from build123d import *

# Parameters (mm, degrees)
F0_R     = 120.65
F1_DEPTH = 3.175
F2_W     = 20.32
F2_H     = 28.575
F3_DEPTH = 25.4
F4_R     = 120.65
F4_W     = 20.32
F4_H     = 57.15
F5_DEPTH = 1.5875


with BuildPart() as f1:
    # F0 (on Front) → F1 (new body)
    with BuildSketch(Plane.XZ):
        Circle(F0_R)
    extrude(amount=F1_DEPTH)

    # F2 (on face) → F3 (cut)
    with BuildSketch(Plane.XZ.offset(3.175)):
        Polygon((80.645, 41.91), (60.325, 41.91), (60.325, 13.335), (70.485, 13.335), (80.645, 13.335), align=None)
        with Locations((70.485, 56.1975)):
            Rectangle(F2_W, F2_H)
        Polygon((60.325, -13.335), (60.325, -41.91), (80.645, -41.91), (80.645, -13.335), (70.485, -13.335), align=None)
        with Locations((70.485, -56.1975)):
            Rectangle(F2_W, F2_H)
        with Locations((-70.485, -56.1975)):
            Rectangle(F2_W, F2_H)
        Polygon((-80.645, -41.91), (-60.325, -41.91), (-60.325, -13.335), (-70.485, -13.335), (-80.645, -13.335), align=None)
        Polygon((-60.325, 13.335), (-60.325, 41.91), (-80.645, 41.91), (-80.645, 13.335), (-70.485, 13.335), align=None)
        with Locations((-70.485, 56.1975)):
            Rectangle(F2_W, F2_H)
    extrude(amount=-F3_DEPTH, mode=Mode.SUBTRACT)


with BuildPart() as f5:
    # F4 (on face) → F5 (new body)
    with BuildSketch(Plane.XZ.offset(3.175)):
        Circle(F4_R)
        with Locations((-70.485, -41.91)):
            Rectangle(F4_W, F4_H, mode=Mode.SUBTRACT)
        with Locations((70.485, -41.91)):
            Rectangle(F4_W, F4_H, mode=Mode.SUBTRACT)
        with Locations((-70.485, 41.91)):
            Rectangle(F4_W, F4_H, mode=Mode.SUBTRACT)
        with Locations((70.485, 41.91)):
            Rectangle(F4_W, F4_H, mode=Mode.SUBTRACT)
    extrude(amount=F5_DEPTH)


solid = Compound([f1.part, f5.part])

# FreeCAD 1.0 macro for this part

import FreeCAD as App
import Part
import Sketcher
Q = App.Units.Quantity


def add_polygon(sketch, points):
    """Adds a closed chain of lines whose ends are joined by coincident constraints."""
    first, n = sketch.GeometryCount, len(points)
    for a, b in zip(points, points[1:] + points[:1]):
        sketch.addGeometry(Part.LineSegment(App.Vector(*a, 0), App.Vector(*b, 0)), False)
    for i in range(n):
        sketch.addConstraint(Sketcher.Constraint("Coincident", first + i, 2, first + (i + 1) % n, 1))

doc = App.newDocument("Part")
body = doc.addObject("PartDesign::Body", "Body")

# Sketch on XZ plane
sketch1 = body.newObject("Sketcher::SketchObject", "Sketch")
sketch1.AttachmentSupport = (doc.getObject("XZ_Plane"), [""])
sketch1.MapMode = "FlatFace"
sketch1.addGeometry(Part.Circle(App.Vector(0, 0, 0), App.Vector(0, 0, 1), 120.65), False)
sketch1.addConstraint(Sketcher.Constraint("Coincident", 0, 3, -1, 1))
sketch1.addConstraint(Sketcher.Constraint("Diameter", 0, Q("9.5 in")))
pad1 = body.newObject("PartDesign::Pad", "Pad")
pad1.Profile = sketch1
pad1.Length = Q("0.125 in")

# Sketch on XZ plane
sketch2 = body.newObject("Sketcher::SketchObject", "Sketch001")
sketch2.AttachmentSupport = (doc.getObject("XZ_Plane"), [""])
sketch2.MapMode = "FlatFace"
sketch2.AttachmentOffset = App.Placement(App.Vector(0, 0, 0.125 * 25.4), App.Rotation())
add_polygon(sketch2, [(60.325, 13.335), (80.645, 13.335), (80.645, 70.485), (60.325, 70.485)])  # lines 0-3
add_polygon(sketch2, [(60.325, -13.335), (60.325, -70.485), (80.645, -70.485), (80.645, -13.335)])  # lines 4-7
add_polygon(sketch2, [(-80.645, -70.485), (-60.325, -70.485), (-60.325, -13.335), (-80.645, -13.335)])  # lines 8-11
add_polygon(sketch2, [(-60.325, 13.335), (-60.325, 70.485), (-80.645, 70.485), (-80.645, 13.335)])  # lines 12-15
sketch2.addConstraint(Sketcher.Constraint("Horizontal", 0))
sketch2.addConstraint(Sketcher.Constraint("Vertical", 1))
sketch2.addConstraint(Sketcher.Constraint("Horizontal", 2))
sketch2.addConstraint(Sketcher.Constraint("Vertical", 3))
sketch2.addConstraint(Sketcher.Constraint("Vertical", 4))
sketch2.addConstraint(Sketcher.Constraint("Horizontal", 5))
sketch2.addConstraint(Sketcher.Constraint("Vertical", 6))
sketch2.addConstraint(Sketcher.Constraint("Horizontal", 7))
sketch2.addConstraint(Sketcher.Constraint("Horizontal", 8))
sketch2.addConstraint(Sketcher.Constraint("Vertical", 9))
sketch2.addConstraint(Sketcher.Constraint("Horizontal", 10))
sketch2.addConstraint(Sketcher.Constraint("Vertical", 11))
sketch2.addConstraint(Sketcher.Constraint("Vertical", 12))
sketch2.addConstraint(Sketcher.Constraint("Horizontal", 13))
sketch2.addConstraint(Sketcher.Constraint("Vertical", 14))
sketch2.addConstraint(Sketcher.Constraint("Horizontal", 15))
sketch2.addConstraint(Sketcher.Constraint("Symmetric", 2, 2, 8, 2, -1, 1))
sketch2.addConstraint(Sketcher.Constraint("Symmetric", 0, 2, 10, 2, -1, 1))
sketch2.addConstraint(Sketcher.Constraint("Symmetric", 4, 2, 12, 2, -1, 1))
sketch2.addConstraint(Sketcher.Constraint("Symmetric", 6, 2, 14, 2, -1, 1))
sketch2.addConstraint(Sketcher.Constraint("Symmetric", 4, 2, 8, 2, -2))
sketch2.addConstraint(Sketcher.Constraint("Symmetric", 6, 2, 10, 2, -2))
sketch2.addConstraint(Sketcher.Constraint("DistanceX", 0, 1, 0, 2, Q("0.8 in")))
sketch2.addConstraint(Sketcher.Constraint("DistanceY", 1, 1, 1, 2, Q("2.25 in")))
sketch2.addConstraint(Sketcher.Constraint("DistanceY", 4, 2, 3, 2, Q("3.3 in")))
sketch2.addConstraint(Sketcher.Constraint("DistanceX", 8, 2, 4, 2, Q("4.75 in")))
pocket1 = body.newObject("PartDesign::Pocket", "Pocket")
pocket1.Profile = sketch2
pocket1.Length = Q("1 in")
body2 = doc.addObject("PartDesign::Body", "Body001")

# Sketch on XZ plane
sketch3 = body2.newObject("Sketcher::SketchObject", "Sketch002")
sketch3.AttachmentSupport = (doc.getObject("XZ_Plane001"), [""])
sketch3.MapMode = "FlatFace"
sketch3.AttachmentOffset = App.Placement(App.Vector(0, 0, 0.125 * 25.4), App.Rotation())
sketch3.addGeometry(Part.Circle(App.Vector(0, 0, 0), App.Vector(0, 0, 1), 120.65), False)  # 0
add_polygon(sketch3, [(-60.325, -70.485), (-80.645, -70.485), (-80.645, -13.335), (-60.325, -13.335)])  # lines 1-4
add_polygon(sketch3, [(80.645, -70.485), (60.325, -70.485), (60.325, -13.335), (80.645, -13.335)])  # lines 5-8
add_polygon(sketch3, [(-60.325, 13.335), (-80.645, 13.335), (-80.645, 70.485), (-60.325, 70.485)])  # lines 9-12
add_polygon(sketch3, [(80.645, 13.335), (60.325, 13.335), (60.325, 70.485), (80.645, 70.485)])  # lines 13-16
sketch3.addConstraint(Sketcher.Constraint("Horizontal", 1))
sketch3.addConstraint(Sketcher.Constraint("Vertical", 2))
sketch3.addConstraint(Sketcher.Constraint("Horizontal", 3))
sketch3.addConstraint(Sketcher.Constraint("Vertical", 4))
sketch3.addConstraint(Sketcher.Constraint("Horizontal", 5))
sketch3.addConstraint(Sketcher.Constraint("Vertical", 6))
sketch3.addConstraint(Sketcher.Constraint("Horizontal", 7))
sketch3.addConstraint(Sketcher.Constraint("Vertical", 8))
sketch3.addConstraint(Sketcher.Constraint("Horizontal", 9))
sketch3.addConstraint(Sketcher.Constraint("Vertical", 10))
sketch3.addConstraint(Sketcher.Constraint("Horizontal", 11))
sketch3.addConstraint(Sketcher.Constraint("Vertical", 12))
sketch3.addConstraint(Sketcher.Constraint("Horizontal", 13))
sketch3.addConstraint(Sketcher.Constraint("Vertical", 14))
sketch3.addConstraint(Sketcher.Constraint("Horizontal", 15))
sketch3.addConstraint(Sketcher.Constraint("Vertical", 16))
sketch3.addConstraint(Sketcher.Constraint("Coincident", 0, 3, -1, 1))
sketch3.addConstraint(Sketcher.Constraint("Symmetric", 7, 2, 9, 2, -1, 1))
sketch3.addConstraint(Sketcher.Constraint("Symmetric", 5, 2, 11, 2, -1, 1))
sketch3.addConstraint(Sketcher.Constraint("Symmetric", 3, 2, 13, 2, -1, 1))
sketch3.addConstraint(Sketcher.Constraint("Symmetric", 1, 2, 15, 2, -1, 1))
sketch3.addConstraint(Sketcher.Constraint("Symmetric", 4, 2, 5, 2, -2))
sketch3.addConstraint(Sketcher.Constraint("Symmetric", 2, 2, 7, 2, -2))
sketch3.addConstraint(Sketcher.Constraint("Diameter", 0, Q("9.5 in")))
sketch3.addConstraint(Sketcher.Constraint("DistanceX", 1, 2, 1, 1, Q("0.8 in")))
sketch3.addConstraint(Sketcher.Constraint("DistanceY", 2, 1, 2, 2, Q("2.25 in")))
sketch3.addConstraint(Sketcher.Constraint("DistanceY", 1, 2, 9, 2, Q("3.3 in")))
sketch3.addConstraint(Sketcher.Constraint("DistanceX", 4, 2, 5, 2, Q("4.75 in")))
pad2 = body2.newObject("PartDesign::Pad", "Pad001")
pad2.Profile = sketch3
pad2.Length = Q("0.0625 in")

doc.recompute()
